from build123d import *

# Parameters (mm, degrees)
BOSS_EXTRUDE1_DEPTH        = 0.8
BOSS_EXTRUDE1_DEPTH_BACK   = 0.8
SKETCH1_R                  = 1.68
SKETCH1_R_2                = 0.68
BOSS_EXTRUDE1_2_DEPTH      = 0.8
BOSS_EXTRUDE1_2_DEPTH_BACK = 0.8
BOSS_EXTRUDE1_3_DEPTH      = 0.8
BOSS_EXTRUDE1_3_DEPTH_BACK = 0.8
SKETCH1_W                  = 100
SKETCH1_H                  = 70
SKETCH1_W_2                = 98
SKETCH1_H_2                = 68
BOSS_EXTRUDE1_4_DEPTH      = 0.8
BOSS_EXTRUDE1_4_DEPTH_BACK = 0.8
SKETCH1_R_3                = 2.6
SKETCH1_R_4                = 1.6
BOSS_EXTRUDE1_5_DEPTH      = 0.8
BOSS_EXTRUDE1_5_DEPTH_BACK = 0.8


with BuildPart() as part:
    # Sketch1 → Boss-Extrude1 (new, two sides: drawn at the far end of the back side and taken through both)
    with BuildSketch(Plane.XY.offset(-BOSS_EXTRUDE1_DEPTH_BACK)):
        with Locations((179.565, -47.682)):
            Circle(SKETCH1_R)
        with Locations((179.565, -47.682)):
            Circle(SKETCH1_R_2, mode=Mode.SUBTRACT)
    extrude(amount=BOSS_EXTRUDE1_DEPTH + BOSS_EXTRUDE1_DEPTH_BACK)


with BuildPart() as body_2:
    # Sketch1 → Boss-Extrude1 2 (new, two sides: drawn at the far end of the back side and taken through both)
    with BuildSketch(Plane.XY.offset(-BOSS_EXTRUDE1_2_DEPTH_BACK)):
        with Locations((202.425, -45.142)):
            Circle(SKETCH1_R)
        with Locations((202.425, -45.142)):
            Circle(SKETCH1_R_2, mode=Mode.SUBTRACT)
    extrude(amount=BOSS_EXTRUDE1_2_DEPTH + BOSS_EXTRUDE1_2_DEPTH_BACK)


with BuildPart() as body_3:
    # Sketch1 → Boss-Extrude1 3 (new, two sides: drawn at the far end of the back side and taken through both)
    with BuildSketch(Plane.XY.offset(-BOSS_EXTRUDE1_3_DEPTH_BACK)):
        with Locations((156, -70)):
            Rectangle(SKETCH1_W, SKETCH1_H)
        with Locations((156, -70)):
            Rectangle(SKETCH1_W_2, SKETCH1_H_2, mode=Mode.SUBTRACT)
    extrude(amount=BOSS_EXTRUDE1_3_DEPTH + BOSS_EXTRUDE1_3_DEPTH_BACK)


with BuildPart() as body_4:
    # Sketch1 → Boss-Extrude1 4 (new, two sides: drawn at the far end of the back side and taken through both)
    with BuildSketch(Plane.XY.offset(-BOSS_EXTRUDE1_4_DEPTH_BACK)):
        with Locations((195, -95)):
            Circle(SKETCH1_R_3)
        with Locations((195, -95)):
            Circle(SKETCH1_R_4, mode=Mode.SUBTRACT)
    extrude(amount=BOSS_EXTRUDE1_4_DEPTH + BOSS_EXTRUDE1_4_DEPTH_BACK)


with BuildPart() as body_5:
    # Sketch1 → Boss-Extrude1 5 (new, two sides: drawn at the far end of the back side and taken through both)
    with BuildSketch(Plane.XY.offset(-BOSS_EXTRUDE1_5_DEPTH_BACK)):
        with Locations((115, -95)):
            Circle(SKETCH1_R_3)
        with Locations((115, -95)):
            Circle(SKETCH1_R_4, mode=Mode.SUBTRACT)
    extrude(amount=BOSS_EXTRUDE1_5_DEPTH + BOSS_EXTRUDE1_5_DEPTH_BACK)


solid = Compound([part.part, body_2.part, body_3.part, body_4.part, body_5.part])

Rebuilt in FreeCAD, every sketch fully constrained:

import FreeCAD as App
import Part
import Sketcher
from FreeCAD import Vector


def add_polygon(sketch, points):
    """Adds a closed chain of lines whose ends are joined by coincident constraints."""
    first, n = sketch.GeometryCount, len(points)
    for a, b in zip(points, points[1:] + points[:1]):
        sketch.addGeometry(Part.LineSegment(App.Vector(*a, 0), App.Vector(*b, 0)), False)
    for i in range(n):
        sketch.addConstraint(Sketcher.Constraint("Coincident", first + i, 2, first + (i + 1) % n, 1))

doc = App.newDocument("Part")
body = doc.addObject("PartDesign::Body", "Body")

# Sketch on XY plane
sketch1 = doc.addObject("Sketcher::SketchObject", "Sketch")
body.addObject(sketch1)
sketch1.AttachmentSupport = (doc.XY_Plane, [""])
sketch1.MapMode = "FlatFace"
sketch1.addGeometry([
    Part.Circle(Vector(179.6, -47.7, 0), Vector(0, 0, 1), 1.7),
    Part.Circle(Vector(179.6, -47.7, 0), Vector(0, 0, 1), 0.7),
], False)
sketch1.addConstraint([
    Sketcher.Constraint("Coincident", 1, 3, 0, 3),
    Sketcher.Constraint("Diameter", 0, 3.36),
    Sketcher.Constraint("Diameter", 1, 1.36),
    Sketcher.Constraint("DistanceX", -1, 1, 0, 3, 179.565),
    Sketcher.Constraint("DistanceY", 0, 3, -1, 1, 47.682),
])
pad1 = doc.addObject("PartDesign::Pad", "Pad")
body.addObject(pad1)
pad1.Profile = sketch1
pad1.Type = "TwoLengths"
pad1.Length = 0.8
pad1.Length2 = 0.8
body2 = doc.addObject("PartDesign::Body", "Body001")

# Sketch on XY plane
sketch2 = doc.addObject("Sketcher::SketchObject", "Sketch001")
body2.addObject(sketch2)
sketch2.AttachmentSupport = (doc.getObject("XY_Plane001"), [""])
sketch2.MapMode = "FlatFace"
sketch2.addGeometry([
    Part.Circle(Vector(202.4, -45.1, 0), Vector(0, 0, 1), 1.7),
    Part.Circle(Vector(202.4, -45.1, 0), Vector(0, 0, 1), 0.7),
], False)
sketch2.addConstraint([
    Sketcher.Constraint("Coincident", 1, 3, 0, 3),
    Sketcher.Constraint("Diameter", 0, 3.36),
    Sketcher.Constraint("Diameter", 1, 1.36),
    Sketcher.Constraint("DistanceX", -1, 1, 0, 3, 202.425),
    Sketcher.Constraint("DistanceY", 0, 3, -1, 1, 45.142),
])
pad2 = doc.addObject("PartDesign::Pad", "Pad001")
body2.addObject(pad2)
pad2.Profile = sketch2
pad2.Type = "TwoLengths"
pad2.Length = 0.8
pad2.Length2 = 0.8
body3 = doc.addObject("PartDesign::Body", "Body002")

# Sketch on XY plane
sketch3 = doc.addObject("Sketcher::SketchObject", "Sketch002")
body3.addObject(sketch3)
sketch3.AttachmentSupport = (doc.getObject("XY_Plane002"), [""])
sketch3.MapMode = "FlatFace"
add_polygon(sketch3, [(106, -35), (106, -105), (206, -105), (206, -35)])  # lines 0-3
add_polygon(sketch3, [(205, -104), (107, -104), (107, -36), (205, -36)])  # lines 4-7
sketch3.addConstraint([
    Sketcher.Constraint("Vertical", 0),
    Sketcher.Constraint("Horizontal", 1),
    Sketcher.Constraint("Vertical", 2),
    Sketcher.Constraint("Horizontal", 3),
    Sketcher.Constraint("Horizontal", 4),
    Sketcher.Constraint("Vertical", 5),
    Sketcher.Constraint("Horizontal", 6),
    Sketcher.Constraint("Vertical", 7),
    Sketcher.Constraint("DistanceX", 1, 1, 1, 2, 100.0),
    Sketcher.Constraint("DistanceX", 4, 2, 4, 1, 98.0),
    Sketcher.Constraint("DistanceY", 0, 2, 0, 1, 70.0),
    Sketcher.Constraint("DistanceY", 5, 1, 5, 2, 68.0),
    Sketcher.Constraint("DistanceX", -1, 1, 0, 2, 106.0),
    Sketcher.Constraint("DistanceY", 0, 2, -1, 1, 105.0),
    Sketcher.Constraint("DistanceX", -1, 1, 4, 2, 107.0),
    Sketcher.Constraint("DistanceY", 4, 2, -1, 1, 104.0),
])
pad3 = doc.addObject("PartDesign::Pad", "Pad002")
body3.addObject(pad3)
pad3.Profile = sketch3
pad3.Type = "TwoLengths"
pad3.Length = 0.8
pad3.Length2 = 0.8
body4 = doc.addObject("PartDesign::Body", "Body003")

# Sketch on XY plane
sketch4 = doc.addObject("Sketcher::SketchObject", "Sketch003")
body4.addObject(sketch4)
sketch4.AttachmentSupport = (doc.getObject("XY_Plane003"), [""])
sketch4.MapMode = "FlatFace"
sketch4.addGeometry([
    Part.Circle(Vector(195, -95, 0), Vector(0, 0, 1), 2.6),
    Part.Circle(Vector(195, -95, 0), Vector(0, 0, 1), 1.6),
], False)
sketch4.addConstraint([
    Sketcher.Constraint("Coincident", 1, 3, 0, 3),
    Sketcher.Constraint("Diameter", 0, 5.2),
    Sketcher.Constraint("Diameter", 1, 3.2),
    Sketcher.Constraint("DistanceX", -1, 1, 0, 3, 195.0),
    Sketcher.Constraint("DistanceY", 0, 3, -1, 1, 95.0),
])
pad4 = doc.addObject("PartDesign::Pad", "Pad003")
body4.addObject(pad4)
pad4.Profile = sketch4
pad4.Type = "TwoLengths"
pad4.Length = 0.8
pad4.Length2 = 0.8
body5 = doc.addObject("PartDesign::Body", "Body004")

# Sketch on XY plane
sketch5 = doc.addObject("Sketcher::SketchObject", "Sketch004")
body5.addObject(sketch5)
sketch5.AttachmentSupport = (doc.getObject("XY_Plane004"), [""])
sketch5.MapMode = "FlatFace"
sketch5.addGeometry([
    Part.Circle(Vector(115, -95, 0), Vector(0, 0, 1), 2.6),
    Part.Circle(Vector(115, -95, 0), Vector(0, 0, 1), 1.6),
], False)
sketch5.addConstraint([
    Sketcher.Constraint("Coincident", 1, 3, 0, 3),
    Sketcher.Constraint("Diameter", 0, 5.2),
    Sketcher.Constraint("Diameter", 1, 3.2),
    Sketcher.Constraint("DistanceX", -1, 1, 0, 3, 115.0),
    Sketcher.Constraint("DistanceY", 0, 3, -1, 1, 95.0),
])
pad5 = doc.addObject("PartDesign::Pad", "Pad004")
body5.addObject(pad5)
pad5.Profile = sketch5
pad5.Type = "TwoLengths"
pad5.Length = 0.8
pad5.Length2 = 0.8

doc.recompute()
